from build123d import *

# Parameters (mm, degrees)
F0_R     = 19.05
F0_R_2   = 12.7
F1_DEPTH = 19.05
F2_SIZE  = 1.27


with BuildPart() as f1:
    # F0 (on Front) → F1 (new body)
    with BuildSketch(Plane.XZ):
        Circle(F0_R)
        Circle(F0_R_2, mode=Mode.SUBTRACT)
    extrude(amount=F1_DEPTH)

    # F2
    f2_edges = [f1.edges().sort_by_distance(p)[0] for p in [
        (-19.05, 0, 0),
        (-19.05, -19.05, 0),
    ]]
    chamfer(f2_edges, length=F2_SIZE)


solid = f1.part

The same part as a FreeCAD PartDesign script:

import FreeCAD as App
import Part
import Sketcher
Q = App.Units.Quantity


def edges_at(feature, points):
    """Names of the edges that pass closest to the given points."""
    edges = feature.Shape.Edges
    near = lambda p: min(range(len(edges)), key=lambda i: edges[i].distToShape(Part.Vertex(*p))[0])
    return sorted({f"Edge{near(p) + 1}" for p in points})

doc = App.newDocument("Part")
body = doc.addObject("PartDesign::Body", "Body")

sketch1 = body.newObject("Sketcher::SketchObject", "Sketch")
sketch1.AttachmentSupport = (doc.getObject("XZ_Plane"), [""])
sketch1.MapMode = "FlatFace"
sketch1.addGeometry([
    Part.Circle(App.Vector(0, 0, 0), App.Vector(0, 0, 1), 19.05),
    Part.Circle(App.Vector(0, 0, 0), App.Vector(0, 0, 1), 12.7),
], False)
sketch1.addConstraint([
    Sketcher.Constraint("Coincident", 0, 3, -1, 1),
    Sketcher.Constraint("Coincident", 1, 3, -1, 1),
    Sketcher.Constraint("Diameter", 1, Q("1 in")),
    Sketcher.Constraint("Diameter", 0, Q("1.5 in")),
])
pad1 = body.newObject("PartDesign::Pad", "Pad")
pad1.Profile = sketch1
pad1.Length = Q("0.75 in")
doc.recompute()

chamfer = body.newObject("PartDesign::Chamfer", "Chamfer")
chamfer.Base = (pad1, edges_at(pad1, [(-19.05, 0, 0), (-19.05, -19.05, 0)]))
chamfer.Size = Q("0.05 in")

doc.recompute()
